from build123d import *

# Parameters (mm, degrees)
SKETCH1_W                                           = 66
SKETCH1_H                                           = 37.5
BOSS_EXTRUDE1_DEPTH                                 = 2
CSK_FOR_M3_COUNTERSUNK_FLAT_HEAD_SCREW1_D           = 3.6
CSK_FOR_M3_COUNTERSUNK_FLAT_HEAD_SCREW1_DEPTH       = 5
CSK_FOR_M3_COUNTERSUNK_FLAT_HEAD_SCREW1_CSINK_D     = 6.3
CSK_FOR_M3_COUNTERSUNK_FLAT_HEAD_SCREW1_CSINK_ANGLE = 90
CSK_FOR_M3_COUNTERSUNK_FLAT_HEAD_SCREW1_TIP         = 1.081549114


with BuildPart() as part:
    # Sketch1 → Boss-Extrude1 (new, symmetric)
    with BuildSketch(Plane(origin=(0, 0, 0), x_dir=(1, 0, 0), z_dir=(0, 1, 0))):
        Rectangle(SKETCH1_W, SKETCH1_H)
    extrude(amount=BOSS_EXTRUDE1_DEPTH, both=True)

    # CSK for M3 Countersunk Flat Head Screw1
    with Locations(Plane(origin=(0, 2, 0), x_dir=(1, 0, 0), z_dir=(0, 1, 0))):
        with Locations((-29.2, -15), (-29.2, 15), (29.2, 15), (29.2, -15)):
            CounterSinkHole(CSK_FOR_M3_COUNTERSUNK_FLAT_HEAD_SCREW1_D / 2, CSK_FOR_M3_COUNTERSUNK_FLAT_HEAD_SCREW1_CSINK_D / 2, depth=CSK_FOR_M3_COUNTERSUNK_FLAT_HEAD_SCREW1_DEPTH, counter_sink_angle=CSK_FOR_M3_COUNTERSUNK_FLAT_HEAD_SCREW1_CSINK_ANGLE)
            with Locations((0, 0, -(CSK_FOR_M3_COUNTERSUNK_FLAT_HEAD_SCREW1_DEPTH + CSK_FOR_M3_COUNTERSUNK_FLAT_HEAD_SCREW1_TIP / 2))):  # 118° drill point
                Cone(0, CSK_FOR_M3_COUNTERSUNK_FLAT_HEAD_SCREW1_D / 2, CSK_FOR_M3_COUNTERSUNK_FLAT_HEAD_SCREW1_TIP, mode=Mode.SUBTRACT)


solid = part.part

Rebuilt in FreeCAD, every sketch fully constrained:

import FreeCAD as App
import Part
import Sketcher

V = App.Vector

doc = App.newDocument("Part")
params = doc.addObject("Spreadsheet::Sheet", "Params")
for row, (alias, value) in enumerate([
    ("sketch1_width", "66 mm"),
    ("sketch1_height", "37.5 mm"),
    ("pad1_length", "4 mm"),
    ("sketch2_diameter", "3.6 mm"),
    ("hole_diameter", "3.6 mm"),
    ("hole_depth", "5 mm"),
    ("hole_csink_diameter", "6.3 mm"),
], start=1):
    params.set(f"A{row}", alias)
    params.set(f"B{row}", "=" + value)
    params.setAlias(f"B{row}", alias)

body = doc.addObject("PartDesign::Body", "Body")

sketch1 = doc.addObject("Sketcher::SketchObject", "Sketch")
body.addObject(sketch1)
sketch1.AttachmentSupport = (doc.XZ_Plane, [""])
sketch1.MapMode = "FlatFace"
sketch1.addGeometry(Part.LineSegment(V(-33, -19, 0), V(-33, 19, 0)), False)
sketch1.addGeometry(Part.LineSegment(V(-33, 19, 0), V(33, 19, 0)), False)
sketch1.addGeometry(Part.LineSegment(V(33, 19, 0), V(33, -19, 0)), False)
sketch1.addGeometry(Part.LineSegment(V(33, -19, 0), V(-33, -19, 0)), False)
sketch1.addConstraint(Sketcher.Constraint("Coincident", 0, 2, 1, 1))
sketch1.addConstraint(Sketcher.Constraint("Coincident", 1, 2, 2, 1))
sketch1.addConstraint(Sketcher.Constraint("Coincident", 2, 2, 3, 1))
sketch1.addConstraint(Sketcher.Constraint("Coincident", 3, 2, 0, 1))
sketch1.addConstraint(Sketcher.Constraint("Vertical", 0))
sketch1.addConstraint(Sketcher.Constraint("Horizontal", 1))
sketch1.addConstraint(Sketcher.Constraint("Vertical", 2))
sketch1.addConstraint(Sketcher.Constraint("Horizontal", 3))
sketch1.addConstraint(Sketcher.Constraint("Symmetric", 0, 2, 2, 2, -1, 1))
sketch1.addConstraint(Sketcher.Constraint("DistanceX", 1, 1, 1, 2, 66.0))
sketch1.addConstraint(Sketcher.Constraint("DistanceY", 0, 1, 0, 2, 37.5))
sketch1.setExpression("Constraints[9]", "Params.sketch1_width")
sketch1.setExpression("Constraints[10]", "Params.sketch1_height")
pad1 = doc.addObject("PartDesign::Pad", "Pad")
body.addObject(pad1)
pad1.Profile = sketch1
pad1.setExpression("Length", "Params.pad1_length")
pad1.Midplane = True

sketch2 = doc.addObject("Sketcher::SketchObject", "Sketch001")
body.addObject(sketch2)
sketch2.AttachmentSupport = (doc.XZ_Plane, [""])
sketch2.MapMode = "FlatFace"
sketch2.AttachmentOffset = App.Placement(V(0, 0, -2), App.Rotation())
sketch2.addGeometry(Part.Circle(V(-29.2, 15, 0), V(0, 0, 1), 1.8), False)
sketch2.addGeometry(Part.Circle(V(-29.2, -15, 0), V(0, 0, 1), 1.8), False)
sketch2.addGeometry(Part.Circle(V(29.2, -15, 0), V(0, 0, 1), 1.8), False)
sketch2.addGeometry(Part.Circle(V(29.2, 15, 0), V(0, 0, 1), 1.8), False)
sketch2.addConstraint(Sketcher.Constraint("Equal", 0, 1))
sketch2.addConstraint(Sketcher.Constraint("Equal", 1, 2))
sketch2.addConstraint(Sketcher.Constraint("Equal", 2, 3))
sketch2.addConstraint(Sketcher.Constraint("Symmetric", 0, 3, 2, 3, -1, 1))
sketch2.addConstraint(Sketcher.Constraint("Symmetric", 1, 3, 3, 3, -1, 1))
sketch2.addConstraint(Sketcher.Constraint("Symmetric", 1, 3, 2, 3, -2))
sketch2.addConstraint(Sketcher.Constraint("Diameter", 0, 3.6))
sketch2.addConstraint(Sketcher.Constraint("DistanceY", -1, 1, 0, 3, 15.0))
sketch2.addConstraint(Sketcher.Constraint("DistanceX", 0, 3, -1, 1, 29.2))
sketch2.setExpression("Constraints[6]", "Params.sketch2_diameter")
doc.recompute()
hole = doc.addObject("PartDesign::Hole", "Hole")
body.addObject(hole)
hole.Profile = sketch2
hole.ThreadType = "None"
hole.setExpression("Diameter", "Params.hole_diameter")
hole.DepthType = "Dimension"
hole.setExpression("Depth", "Params.hole_depth")
hole.DrillPoint = "Angled"
hole.DrillPointAngle = 118
hole.HoleCutType = "Countersink"
hole.setExpression("HoleCutDiameter", "Params.hole_csink_diameter")
hole.HoleCutCountersinkAngle = 90
hole.Reversed = True

doc.recompute()
